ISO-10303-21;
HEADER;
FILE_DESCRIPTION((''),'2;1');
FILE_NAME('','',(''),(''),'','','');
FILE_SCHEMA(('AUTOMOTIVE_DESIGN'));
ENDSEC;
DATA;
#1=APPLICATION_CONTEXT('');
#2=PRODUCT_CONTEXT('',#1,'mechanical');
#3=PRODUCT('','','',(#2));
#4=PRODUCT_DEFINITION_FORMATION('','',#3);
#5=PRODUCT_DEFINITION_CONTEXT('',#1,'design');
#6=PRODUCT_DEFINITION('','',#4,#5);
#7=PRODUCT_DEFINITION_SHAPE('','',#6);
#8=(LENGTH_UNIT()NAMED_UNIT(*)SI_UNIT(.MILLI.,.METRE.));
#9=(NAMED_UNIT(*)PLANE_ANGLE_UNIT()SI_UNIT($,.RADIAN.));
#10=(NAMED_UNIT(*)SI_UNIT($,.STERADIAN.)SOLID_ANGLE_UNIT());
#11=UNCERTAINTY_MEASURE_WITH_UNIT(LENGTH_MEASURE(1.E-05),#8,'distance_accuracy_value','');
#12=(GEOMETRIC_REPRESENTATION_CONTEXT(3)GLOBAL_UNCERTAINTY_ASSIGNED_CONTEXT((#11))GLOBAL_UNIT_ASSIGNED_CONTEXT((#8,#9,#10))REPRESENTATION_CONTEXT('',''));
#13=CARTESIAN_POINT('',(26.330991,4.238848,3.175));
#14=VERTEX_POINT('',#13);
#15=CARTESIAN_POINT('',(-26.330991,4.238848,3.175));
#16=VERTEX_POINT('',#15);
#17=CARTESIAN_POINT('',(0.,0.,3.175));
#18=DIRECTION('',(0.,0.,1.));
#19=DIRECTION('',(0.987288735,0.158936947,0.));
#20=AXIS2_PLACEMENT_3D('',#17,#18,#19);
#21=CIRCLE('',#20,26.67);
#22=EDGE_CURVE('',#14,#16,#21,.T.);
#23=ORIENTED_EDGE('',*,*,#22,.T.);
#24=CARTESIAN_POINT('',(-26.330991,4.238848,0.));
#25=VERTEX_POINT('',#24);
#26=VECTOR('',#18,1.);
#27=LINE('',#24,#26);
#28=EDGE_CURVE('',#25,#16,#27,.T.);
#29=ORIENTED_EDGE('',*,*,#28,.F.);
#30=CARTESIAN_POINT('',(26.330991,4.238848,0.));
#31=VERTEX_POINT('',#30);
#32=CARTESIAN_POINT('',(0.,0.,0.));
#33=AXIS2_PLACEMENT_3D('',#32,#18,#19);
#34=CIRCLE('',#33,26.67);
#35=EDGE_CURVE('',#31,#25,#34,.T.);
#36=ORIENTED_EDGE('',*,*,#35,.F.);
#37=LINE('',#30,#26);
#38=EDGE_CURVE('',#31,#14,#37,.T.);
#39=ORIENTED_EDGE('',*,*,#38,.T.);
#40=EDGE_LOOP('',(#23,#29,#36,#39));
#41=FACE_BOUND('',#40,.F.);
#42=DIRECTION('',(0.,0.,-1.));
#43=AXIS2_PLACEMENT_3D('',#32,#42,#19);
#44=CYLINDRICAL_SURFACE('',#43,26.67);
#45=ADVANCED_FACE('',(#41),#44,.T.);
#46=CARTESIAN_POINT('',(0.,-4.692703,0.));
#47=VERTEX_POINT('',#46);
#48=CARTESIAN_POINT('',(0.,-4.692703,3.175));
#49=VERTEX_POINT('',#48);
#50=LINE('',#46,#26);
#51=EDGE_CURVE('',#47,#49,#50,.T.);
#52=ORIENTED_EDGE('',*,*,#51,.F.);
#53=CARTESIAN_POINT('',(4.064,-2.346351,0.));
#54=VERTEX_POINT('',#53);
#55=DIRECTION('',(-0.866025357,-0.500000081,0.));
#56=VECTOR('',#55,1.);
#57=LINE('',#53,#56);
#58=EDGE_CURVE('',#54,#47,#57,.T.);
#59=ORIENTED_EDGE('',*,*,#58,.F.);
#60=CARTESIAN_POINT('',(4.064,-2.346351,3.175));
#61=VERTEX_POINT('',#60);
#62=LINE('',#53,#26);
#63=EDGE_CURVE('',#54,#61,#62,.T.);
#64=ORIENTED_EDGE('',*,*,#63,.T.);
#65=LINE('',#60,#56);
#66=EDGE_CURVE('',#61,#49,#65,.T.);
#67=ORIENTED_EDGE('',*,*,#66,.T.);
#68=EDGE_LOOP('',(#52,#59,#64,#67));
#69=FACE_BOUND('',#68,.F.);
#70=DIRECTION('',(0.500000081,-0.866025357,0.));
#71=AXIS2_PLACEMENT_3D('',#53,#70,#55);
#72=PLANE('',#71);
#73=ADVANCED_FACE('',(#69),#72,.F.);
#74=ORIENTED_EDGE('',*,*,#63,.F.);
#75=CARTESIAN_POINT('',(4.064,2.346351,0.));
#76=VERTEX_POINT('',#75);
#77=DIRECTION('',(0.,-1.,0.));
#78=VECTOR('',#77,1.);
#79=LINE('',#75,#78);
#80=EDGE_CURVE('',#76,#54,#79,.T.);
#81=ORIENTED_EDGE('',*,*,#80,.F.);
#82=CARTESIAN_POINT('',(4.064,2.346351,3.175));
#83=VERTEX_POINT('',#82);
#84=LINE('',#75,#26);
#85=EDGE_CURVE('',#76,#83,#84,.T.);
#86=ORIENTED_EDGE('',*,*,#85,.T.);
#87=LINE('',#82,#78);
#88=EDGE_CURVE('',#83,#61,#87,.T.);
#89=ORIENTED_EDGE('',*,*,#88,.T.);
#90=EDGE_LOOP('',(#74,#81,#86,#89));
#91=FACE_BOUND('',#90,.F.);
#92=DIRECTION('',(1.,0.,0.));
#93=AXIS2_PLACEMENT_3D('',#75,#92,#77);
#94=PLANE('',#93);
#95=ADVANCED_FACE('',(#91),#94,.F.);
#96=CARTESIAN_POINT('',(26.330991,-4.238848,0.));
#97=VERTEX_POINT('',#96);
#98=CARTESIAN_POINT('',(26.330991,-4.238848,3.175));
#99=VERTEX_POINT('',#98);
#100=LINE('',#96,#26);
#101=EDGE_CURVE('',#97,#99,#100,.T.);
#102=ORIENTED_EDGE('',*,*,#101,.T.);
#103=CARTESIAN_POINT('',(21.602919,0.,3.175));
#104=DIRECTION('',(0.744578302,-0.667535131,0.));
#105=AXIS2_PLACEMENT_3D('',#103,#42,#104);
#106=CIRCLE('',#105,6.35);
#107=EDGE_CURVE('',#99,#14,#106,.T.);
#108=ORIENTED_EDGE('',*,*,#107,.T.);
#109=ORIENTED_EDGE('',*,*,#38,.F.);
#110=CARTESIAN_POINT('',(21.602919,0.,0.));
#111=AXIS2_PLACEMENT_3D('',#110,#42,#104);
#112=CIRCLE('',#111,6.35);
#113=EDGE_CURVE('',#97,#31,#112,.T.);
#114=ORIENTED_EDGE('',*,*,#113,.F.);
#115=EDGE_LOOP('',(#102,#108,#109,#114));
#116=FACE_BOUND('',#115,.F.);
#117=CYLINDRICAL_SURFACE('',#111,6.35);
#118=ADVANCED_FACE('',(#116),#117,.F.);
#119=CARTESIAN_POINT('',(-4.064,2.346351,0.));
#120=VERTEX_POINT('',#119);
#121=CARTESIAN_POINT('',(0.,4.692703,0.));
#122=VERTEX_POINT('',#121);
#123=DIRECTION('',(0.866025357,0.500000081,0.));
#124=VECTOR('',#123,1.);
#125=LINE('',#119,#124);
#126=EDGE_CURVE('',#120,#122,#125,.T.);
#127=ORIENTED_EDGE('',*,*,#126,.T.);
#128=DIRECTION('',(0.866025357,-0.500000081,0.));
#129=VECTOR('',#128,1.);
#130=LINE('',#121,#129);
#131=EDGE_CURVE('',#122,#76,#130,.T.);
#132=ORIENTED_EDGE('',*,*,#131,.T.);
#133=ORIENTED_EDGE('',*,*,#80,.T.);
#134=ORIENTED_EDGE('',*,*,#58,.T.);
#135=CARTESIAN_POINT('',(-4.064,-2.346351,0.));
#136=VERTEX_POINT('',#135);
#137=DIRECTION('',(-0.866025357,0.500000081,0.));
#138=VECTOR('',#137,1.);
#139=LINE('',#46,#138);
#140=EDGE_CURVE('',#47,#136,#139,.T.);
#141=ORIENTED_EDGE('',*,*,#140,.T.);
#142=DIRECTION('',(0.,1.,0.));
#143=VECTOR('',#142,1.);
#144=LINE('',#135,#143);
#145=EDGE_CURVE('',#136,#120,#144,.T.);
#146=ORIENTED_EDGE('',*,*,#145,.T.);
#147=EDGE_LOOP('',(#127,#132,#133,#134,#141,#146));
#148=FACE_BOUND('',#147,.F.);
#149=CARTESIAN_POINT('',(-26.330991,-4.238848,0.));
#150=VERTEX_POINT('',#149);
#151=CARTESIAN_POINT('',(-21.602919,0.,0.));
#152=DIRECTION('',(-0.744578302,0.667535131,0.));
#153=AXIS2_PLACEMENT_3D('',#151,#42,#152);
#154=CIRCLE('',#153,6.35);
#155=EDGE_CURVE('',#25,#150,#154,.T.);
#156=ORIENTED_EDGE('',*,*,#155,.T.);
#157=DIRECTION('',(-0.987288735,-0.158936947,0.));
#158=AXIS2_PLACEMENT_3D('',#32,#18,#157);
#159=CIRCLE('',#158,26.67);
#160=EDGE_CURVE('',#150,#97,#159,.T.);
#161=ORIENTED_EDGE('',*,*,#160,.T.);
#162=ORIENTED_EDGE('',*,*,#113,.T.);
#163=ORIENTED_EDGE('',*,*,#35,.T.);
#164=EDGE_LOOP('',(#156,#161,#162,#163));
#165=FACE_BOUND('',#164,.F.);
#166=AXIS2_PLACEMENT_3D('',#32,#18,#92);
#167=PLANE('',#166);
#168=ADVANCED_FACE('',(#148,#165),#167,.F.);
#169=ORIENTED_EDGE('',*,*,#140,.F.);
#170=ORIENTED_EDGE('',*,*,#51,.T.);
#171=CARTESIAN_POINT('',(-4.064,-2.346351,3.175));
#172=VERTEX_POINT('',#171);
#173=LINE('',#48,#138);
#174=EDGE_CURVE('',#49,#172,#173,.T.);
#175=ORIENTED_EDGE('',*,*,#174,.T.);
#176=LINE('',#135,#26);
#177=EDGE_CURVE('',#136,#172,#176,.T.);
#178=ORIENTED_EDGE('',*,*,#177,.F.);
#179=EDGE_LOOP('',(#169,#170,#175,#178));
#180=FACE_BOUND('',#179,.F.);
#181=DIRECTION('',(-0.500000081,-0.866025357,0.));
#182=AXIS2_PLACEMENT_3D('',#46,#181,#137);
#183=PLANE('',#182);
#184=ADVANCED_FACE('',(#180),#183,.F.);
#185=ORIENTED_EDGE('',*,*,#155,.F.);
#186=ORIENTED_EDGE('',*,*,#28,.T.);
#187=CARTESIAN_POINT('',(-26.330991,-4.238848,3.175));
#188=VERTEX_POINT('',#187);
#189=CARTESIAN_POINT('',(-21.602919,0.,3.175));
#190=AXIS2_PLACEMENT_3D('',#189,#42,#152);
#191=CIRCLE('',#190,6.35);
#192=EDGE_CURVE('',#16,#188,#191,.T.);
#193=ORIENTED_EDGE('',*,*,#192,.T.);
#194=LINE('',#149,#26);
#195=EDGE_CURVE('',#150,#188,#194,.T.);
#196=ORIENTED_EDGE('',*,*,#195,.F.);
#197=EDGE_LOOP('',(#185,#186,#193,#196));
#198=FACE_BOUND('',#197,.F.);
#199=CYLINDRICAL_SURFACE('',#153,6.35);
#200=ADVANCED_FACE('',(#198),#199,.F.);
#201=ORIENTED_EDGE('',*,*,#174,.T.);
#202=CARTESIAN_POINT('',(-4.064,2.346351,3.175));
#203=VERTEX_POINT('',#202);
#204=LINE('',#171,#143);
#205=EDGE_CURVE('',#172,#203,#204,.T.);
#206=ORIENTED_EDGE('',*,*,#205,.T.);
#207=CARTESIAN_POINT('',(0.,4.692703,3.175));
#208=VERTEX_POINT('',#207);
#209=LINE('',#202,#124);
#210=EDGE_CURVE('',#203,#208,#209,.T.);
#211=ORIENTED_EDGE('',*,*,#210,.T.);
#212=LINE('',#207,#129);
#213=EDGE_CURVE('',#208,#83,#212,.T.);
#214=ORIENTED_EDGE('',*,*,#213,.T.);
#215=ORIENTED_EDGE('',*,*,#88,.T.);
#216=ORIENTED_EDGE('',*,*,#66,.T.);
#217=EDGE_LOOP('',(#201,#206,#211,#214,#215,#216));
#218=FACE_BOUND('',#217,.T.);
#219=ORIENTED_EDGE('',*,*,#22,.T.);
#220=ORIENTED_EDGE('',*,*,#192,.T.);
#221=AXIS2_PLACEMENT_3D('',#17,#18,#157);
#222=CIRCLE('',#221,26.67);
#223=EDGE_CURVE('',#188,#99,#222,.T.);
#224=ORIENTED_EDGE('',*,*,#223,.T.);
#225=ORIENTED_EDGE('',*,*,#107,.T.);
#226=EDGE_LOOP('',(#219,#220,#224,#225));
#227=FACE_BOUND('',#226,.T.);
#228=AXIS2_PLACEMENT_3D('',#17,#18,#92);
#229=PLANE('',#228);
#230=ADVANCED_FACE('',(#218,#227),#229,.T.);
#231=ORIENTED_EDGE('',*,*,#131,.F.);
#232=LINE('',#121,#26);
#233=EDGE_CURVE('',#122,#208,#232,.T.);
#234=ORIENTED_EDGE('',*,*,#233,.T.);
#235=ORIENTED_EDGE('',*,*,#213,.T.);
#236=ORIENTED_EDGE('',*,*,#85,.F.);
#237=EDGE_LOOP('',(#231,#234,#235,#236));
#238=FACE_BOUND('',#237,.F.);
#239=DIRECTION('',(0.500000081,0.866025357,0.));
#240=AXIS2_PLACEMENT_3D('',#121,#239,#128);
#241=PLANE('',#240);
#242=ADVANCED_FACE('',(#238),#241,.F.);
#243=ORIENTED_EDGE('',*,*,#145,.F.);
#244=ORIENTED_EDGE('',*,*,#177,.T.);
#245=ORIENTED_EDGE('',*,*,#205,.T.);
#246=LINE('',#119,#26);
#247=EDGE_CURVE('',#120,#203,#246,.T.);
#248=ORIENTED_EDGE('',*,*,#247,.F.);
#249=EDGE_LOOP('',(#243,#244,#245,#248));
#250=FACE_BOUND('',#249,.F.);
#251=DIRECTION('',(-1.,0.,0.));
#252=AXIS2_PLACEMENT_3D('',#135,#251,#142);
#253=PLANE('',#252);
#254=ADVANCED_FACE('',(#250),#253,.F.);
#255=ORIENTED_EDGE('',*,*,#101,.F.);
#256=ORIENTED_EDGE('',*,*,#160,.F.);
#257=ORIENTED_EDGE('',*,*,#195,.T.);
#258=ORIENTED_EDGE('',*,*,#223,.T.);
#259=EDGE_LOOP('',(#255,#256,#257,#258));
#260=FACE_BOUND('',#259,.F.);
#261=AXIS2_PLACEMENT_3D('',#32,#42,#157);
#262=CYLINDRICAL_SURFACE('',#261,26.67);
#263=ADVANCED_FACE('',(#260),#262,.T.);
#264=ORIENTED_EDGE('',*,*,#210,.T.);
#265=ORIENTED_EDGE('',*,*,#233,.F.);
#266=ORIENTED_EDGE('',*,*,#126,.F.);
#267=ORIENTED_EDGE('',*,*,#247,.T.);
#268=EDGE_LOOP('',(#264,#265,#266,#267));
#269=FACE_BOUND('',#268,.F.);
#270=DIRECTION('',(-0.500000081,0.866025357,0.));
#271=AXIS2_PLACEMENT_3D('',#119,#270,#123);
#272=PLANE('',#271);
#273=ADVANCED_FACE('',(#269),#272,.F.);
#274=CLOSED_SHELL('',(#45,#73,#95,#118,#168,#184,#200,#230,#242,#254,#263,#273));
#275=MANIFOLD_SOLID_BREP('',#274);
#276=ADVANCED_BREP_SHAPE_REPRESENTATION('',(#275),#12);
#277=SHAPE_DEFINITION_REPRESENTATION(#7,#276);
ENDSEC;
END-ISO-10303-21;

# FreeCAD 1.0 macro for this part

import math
import FreeCAD as App
import Part
import Sketcher
Q = App.Units.Quantity

doc = App.newDocument("Part")
body = doc.addObject("PartDesign::Body", "Body")

sketch1 = body.newObject("Sketcher::SketchObject", "Sketch")
sketch1.AttachmentSupport = (doc.getObject("XY_Plane"), [""])
sketch1.MapMode = "FlatFace"
sketch1.addGeometry([
    Part.ArcOfCircle(Part.Circle(App.Vector(-21.602919, 0, 0), App.Vector(0, 0, 1), 6.35), math.radians(-138.122891), math.radians(138.122891)),
    Part.ArcOfCircle(Part.Circle(App.Vector(0, 0, 0), App.Vector(0, 0, 1), 26.67), math.radians(-170.854802), math.radians(-9.145198)),
    Part.ArcOfCircle(Part.Circle(App.Vector(21.602919, 0, 0), App.Vector(0, 0, 1), 6.35), math.radians(41.877109), math.radians(318.122891)),
    Part.ArcOfCircle(Part.Circle(App.Vector(0, 0, 0), App.Vector(0, 0, 1), 26.67), math.radians(9.145198), math.radians(170.854802)),
    Part.LineSegment(App.Vector(-4.064, 2.346351, 0), App.Vector(0, 4.692703, 0)),
    Part.LineSegment(App.Vector(0, 4.692703, 0), App.Vector(4.064, 2.346351, 0)),
    Part.LineSegment(App.Vector(4.064, 2.346351, 0), App.Vector(4.064, -2.346351, 0)),
    Part.LineSegment(App.Vector(4.064, -2.346351, 0), App.Vector(0, -4.692703, 0)),
    Part.LineSegment(App.Vector(0, -4.692703, 0), App.Vector(-4.064, -2.346351, 0)),
    Part.LineSegment(App.Vector(-4.064, -2.346351, 0), App.Vector(-4.064, 2.346351, 0)),
], False)
sketch1.addConstraint([
    Sketcher.Constraint("Coincident", 0, 1, 1, 1),
    Sketcher.Constraint("Coincident", 1, 2, 2, 2),
    Sketcher.Constraint("Coincident", 2, 1, 3, 1),
    Sketcher.Constraint("Coincident", 3, 2, 0, 2),
    Sketcher.Constraint("Coincident", 4, 2, 5, 1),
    Sketcher.Constraint("Coincident", 5, 2, 6, 1),
    Sketcher.Constraint("Coincident", 6, 2, 7, 1),
    Sketcher.Constraint("Coincident", 7, 2, 8, 1),
    Sketcher.Constraint("Coincident", 8, 2, 9, 1),
    Sketcher.Constraint("Coincident", 9, 2, 4, 1),
    Sketcher.Constraint("Vertical", 6),
    Sketcher.Constraint("Vertical", 9),
    Sketcher.Constraint("Coincident", 1, 3, -1, 1),
    Sketcher.Constraint("Coincident", 3, 3, -1, 1),
    Sketcher.Constraint("Equal", 0, 2),
    Sketcher.Constraint("Equal", 1, 3),
    Sketcher.Constraint("Symmetric", 0, 3, 2, 3, -1, 1),
    Sketcher.Constraint("Symmetric", 4, 2, 7, 2, -1, 1),
    Sketcher.Constraint("Symmetric", 5, 2, 8, 2, -1, 1),
    Sketcher.Constraint("PointOnObject", 0, 3, -1),
    Sketcher.Constraint("PointOnObject", 4, 2, -2),
    Sketcher.Constraint("Parallel", 4, 7),
    Sketcher.Constraint("Horizontal", 6, 2, 8, 2),
    Sketcher.Constraint("Radius", 0, Q("0.25 in")),
    Sketcher.Constraint("Radius", 1, Q("1.05 in")),
    Sketcher.Constraint("Angle", 4, Q("30.000005 deg")),
    Sketcher.Constraint("DistanceX", -1, 1, 5, 2, Q("0.16 in")),
    Sketcher.Constraint("DistanceY", 6, 2, 6, 1, 4.692702),
    Sketcher.Constraint("DistanceX", 0, 3, -1, 1, 21.602919),
])
pad1 = body.newObject("PartDesign::Pad", "Pad")
pad1.Profile = sketch1
pad1.Length = Q("0.125 in")

doc.recompute()
